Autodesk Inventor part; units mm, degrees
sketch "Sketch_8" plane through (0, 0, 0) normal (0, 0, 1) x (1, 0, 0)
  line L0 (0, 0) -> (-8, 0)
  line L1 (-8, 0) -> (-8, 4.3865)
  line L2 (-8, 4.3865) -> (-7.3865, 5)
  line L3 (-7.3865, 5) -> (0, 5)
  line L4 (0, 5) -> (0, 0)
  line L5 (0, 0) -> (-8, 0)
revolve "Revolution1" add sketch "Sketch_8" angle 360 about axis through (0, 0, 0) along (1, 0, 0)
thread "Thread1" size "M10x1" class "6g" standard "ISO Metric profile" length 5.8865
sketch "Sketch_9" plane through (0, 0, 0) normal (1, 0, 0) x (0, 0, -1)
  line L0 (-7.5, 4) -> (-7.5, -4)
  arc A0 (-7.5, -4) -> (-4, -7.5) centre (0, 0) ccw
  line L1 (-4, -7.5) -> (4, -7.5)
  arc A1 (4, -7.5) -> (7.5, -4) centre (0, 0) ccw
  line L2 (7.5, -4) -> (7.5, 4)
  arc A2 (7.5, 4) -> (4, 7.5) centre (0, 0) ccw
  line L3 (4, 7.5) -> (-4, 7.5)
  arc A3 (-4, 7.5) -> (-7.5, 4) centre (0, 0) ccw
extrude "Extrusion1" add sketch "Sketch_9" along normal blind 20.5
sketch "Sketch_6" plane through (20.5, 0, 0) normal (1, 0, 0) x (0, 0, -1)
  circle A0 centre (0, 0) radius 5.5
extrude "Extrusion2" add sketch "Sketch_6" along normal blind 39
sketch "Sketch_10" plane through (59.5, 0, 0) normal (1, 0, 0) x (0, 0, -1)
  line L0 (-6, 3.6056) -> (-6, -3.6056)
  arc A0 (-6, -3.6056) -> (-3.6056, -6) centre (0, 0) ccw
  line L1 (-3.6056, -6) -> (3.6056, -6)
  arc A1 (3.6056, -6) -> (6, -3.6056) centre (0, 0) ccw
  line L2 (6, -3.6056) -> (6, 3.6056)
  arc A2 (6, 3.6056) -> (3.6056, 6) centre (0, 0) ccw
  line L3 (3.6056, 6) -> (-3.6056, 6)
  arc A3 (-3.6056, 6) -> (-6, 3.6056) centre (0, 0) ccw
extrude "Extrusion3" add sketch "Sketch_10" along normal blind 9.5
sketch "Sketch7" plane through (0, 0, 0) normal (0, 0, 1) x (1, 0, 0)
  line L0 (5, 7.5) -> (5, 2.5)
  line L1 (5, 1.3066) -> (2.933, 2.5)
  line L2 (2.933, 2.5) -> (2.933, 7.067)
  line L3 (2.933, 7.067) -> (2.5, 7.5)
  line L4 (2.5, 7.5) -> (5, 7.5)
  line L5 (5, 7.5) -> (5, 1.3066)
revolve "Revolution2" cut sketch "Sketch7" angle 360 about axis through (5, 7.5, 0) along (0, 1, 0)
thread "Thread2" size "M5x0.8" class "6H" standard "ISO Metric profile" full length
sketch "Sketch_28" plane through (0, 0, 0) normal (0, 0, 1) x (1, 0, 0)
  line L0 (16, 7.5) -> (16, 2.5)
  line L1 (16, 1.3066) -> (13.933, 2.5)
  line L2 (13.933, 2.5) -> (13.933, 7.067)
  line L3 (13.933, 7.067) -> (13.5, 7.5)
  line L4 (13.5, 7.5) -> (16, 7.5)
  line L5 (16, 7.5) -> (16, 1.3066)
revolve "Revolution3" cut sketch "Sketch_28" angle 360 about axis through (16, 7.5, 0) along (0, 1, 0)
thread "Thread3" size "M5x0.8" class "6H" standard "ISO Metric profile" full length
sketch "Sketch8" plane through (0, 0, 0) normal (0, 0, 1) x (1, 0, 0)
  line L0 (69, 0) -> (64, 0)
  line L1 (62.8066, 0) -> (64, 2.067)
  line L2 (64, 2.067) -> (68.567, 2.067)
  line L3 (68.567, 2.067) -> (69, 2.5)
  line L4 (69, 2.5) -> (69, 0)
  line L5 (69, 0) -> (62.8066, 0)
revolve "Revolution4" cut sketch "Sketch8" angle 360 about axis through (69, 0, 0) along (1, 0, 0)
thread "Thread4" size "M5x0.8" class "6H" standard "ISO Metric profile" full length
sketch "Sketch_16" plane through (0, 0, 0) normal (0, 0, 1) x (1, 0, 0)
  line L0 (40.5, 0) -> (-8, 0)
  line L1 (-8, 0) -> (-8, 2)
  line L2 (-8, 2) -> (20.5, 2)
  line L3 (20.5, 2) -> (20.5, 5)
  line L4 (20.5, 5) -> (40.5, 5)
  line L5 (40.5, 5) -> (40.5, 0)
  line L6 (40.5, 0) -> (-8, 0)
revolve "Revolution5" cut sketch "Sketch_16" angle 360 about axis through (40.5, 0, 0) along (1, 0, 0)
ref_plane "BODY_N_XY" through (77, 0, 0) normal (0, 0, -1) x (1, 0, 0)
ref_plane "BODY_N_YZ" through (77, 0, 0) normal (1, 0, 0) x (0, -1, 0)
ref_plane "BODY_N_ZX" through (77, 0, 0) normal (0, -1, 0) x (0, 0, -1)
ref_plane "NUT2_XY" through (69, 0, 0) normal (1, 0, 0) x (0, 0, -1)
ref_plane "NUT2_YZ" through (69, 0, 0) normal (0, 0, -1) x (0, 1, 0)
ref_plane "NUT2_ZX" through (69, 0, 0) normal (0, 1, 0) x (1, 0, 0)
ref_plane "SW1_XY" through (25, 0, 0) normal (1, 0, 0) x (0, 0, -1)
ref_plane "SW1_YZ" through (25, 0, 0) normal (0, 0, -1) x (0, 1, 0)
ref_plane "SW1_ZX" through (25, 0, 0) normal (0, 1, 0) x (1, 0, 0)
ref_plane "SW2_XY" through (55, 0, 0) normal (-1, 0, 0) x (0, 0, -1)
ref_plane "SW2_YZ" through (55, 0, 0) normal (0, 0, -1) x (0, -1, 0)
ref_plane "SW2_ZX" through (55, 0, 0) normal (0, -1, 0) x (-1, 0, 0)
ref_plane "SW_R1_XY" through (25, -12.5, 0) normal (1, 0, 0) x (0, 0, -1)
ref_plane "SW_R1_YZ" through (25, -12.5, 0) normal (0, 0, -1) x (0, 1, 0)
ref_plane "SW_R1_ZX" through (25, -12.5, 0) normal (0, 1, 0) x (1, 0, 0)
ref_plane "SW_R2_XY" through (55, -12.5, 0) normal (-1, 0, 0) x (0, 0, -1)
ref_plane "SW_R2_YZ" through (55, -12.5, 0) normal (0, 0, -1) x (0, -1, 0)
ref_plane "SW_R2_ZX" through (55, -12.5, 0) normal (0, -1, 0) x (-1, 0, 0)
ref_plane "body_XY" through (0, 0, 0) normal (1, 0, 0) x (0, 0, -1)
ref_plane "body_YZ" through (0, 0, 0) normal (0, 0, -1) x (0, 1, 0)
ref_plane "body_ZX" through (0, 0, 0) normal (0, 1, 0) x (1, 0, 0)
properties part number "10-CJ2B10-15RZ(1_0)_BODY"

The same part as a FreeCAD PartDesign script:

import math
import FreeCAD as App
import Part
import Sketcher

V = App.Vector
Q = App.Units.Quantity


def add_polygon(sketch, points):
    """Adds a closed chain of lines whose ends are joined by coincident constraints."""
    first, n = sketch.GeometryCount, len(points)
    for a, b in zip(points, points[1:] + points[:1]):
        sketch.addGeometry(Part.LineSegment(App.Vector(*a, 0), App.Vector(*b, 0)), False)
    for i in range(n):
        sketch.addConstraint(Sketcher.Constraint("Coincident", first + i, 2, first + (i + 1) % n, 1))

doc = App.newDocument("Part")
body = doc.addObject("PartDesign::Body", "Body")

sketch1 = body.newObject("Sketcher::SketchObject", "Sketch")
sketch1.AttachmentSupport = (doc.getObject("XY_Plane"), [""])
sketch1.MapMode = "FlatFace"
add_polygon(sketch1, [(-8, 0), (0, 0), (0, 5), (-7.3865, 5), (-8, 4.3865)])
sketch1.addConstraint(Sketcher.Constraint("Horizontal", 0))
sketch1.addConstraint(Sketcher.Constraint("Vertical", 1))
sketch1.addConstraint(Sketcher.Constraint("Horizontal", 2))
sketch1.addConstraint(Sketcher.Constraint("Vertical", 4))
sketch1.addConstraint(Sketcher.Constraint("Coincident", 0, 2, -1, 1))
sketch1.addConstraint(Sketcher.Constraint("DistanceX", 0, 1, 0, 2, 8.0))
sketch1.addConstraint(Sketcher.Constraint("DistanceY", 1, 1, 1, 2, 5.0))
sketch1.addConstraint(Sketcher.Constraint("Angle", 3, Q("-135 deg")))
sketch1.addConstraint(Sketcher.Constraint("DistanceX", 2, 2, 2, 1, 7.3865))
revolution = body.newObject("PartDesign::Revolution", "Revolution")
revolution.Profile = sketch1
revolution.ReferenceAxis = (sketch1, ["H_Axis"])
revolution.Angle = 360

sketch2 = body.newObject("Sketcher::SketchObject", "Sketch001")
sketch2.AttachmentSupport = (doc.getObject("YZ_Plane"), [""])
sketch2.MapMode = "FlatFace"
sketch2.addGeometry(Part.ArcOfCircle(Part.Circle(V(0, 0, 0), V(0, 0, 1), 8.5), math.radians(28.072487), math.radians(61.927513)), False)
sketch2.addGeometry(Part.LineSegment(V(4, 7.5, 0), V(-4, 7.5, 0)), False)
sketch2.addGeometry(Part.ArcOfCircle(Part.Circle(V(0, 0, 0), V(0, 0, 1), 8.5), math.radians(118.072487), math.radians(151.927513)), False)
sketch2.addGeometry(Part.LineSegment(V(-7.5, 4, 0), V(-7.5, -4, 0)), False)
sketch2.addGeometry(Part.ArcOfCircle(Part.Circle(V(0, 0, 0), V(0, 0, 1), 8.5), math.radians(-151.927513), math.radians(-118.072487)), False)
sketch2.addGeometry(Part.LineSegment(V(-4, -7.5, 0), V(4, -7.5, 0)), False)
sketch2.addGeometry(Part.ArcOfCircle(Part.Circle(V(0, 0, 0), V(0, 0, 1), 8.5), math.radians(-61.927513), math.radians(-28.072487)), False)
sketch2.addGeometry(Part.LineSegment(V(7.5, -4, 0), V(7.5, 4, 0)), False)
sketch2.addConstraint(Sketcher.Constraint("Coincident", 0, 2, 1, 1))
sketch2.addConstraint(Sketcher.Constraint("Coincident", 1, 2, 2, 1))
sketch2.addConstraint(Sketcher.Constraint("Coincident", 2, 2, 3, 1))
sketch2.addConstraint(Sketcher.Constraint("Coincident", 3, 2, 4, 1))
sketch2.addConstraint(Sketcher.Constraint("Coincident", 4, 2, 5, 1))
sketch2.addConstraint(Sketcher.Constraint("Coincident", 5, 2, 6, 1))
sketch2.addConstraint(Sketcher.Constraint("Coincident", 6, 2, 7, 1))
sketch2.addConstraint(Sketcher.Constraint("Coincident", 7, 2, 0, 1))
sketch2.addConstraint(Sketcher.Constraint("Horizontal", 1))
sketch2.addConstraint(Sketcher.Constraint("Vertical", 3))
sketch2.addConstraint(Sketcher.Constraint("Horizontal", 5))
sketch2.addConstraint(Sketcher.Constraint("Vertical", 7))
sketch2.addConstraint(Sketcher.Constraint("Coincident", 0, 3, -1, 1))
sketch2.addConstraint(Sketcher.Constraint("Coincident", 2, 3, -1, 1))
sketch2.addConstraint(Sketcher.Constraint("Coincident", 4, 3, -1, 1))
sketch2.addConstraint(Sketcher.Constraint("Coincident", 6, 3, -1, 1))
sketch2.addConstraint(Sketcher.Constraint("Equal", 0, 2))
sketch2.addConstraint(Sketcher.Constraint("Equal", 2, 4))
sketch2.addConstraint(Sketcher.Constraint("Equal", 4, 6))
sketch2.addConstraint(Sketcher.Constraint("Horizontal", 3, 2, 6, 2))
sketch2.addConstraint(Sketcher.Constraint("Vertical", 1, 2, 4, 2))
sketch2.addConstraint(Sketcher.Constraint("Equal", 5, 3))
sketch2.addConstraint(Sketcher.Constraint("Radius", 0, 8.5))
sketch2.addConstraint(Sketcher.Constraint("DistanceX", 1, 2, 1, 1, 8.0))
pad1 = body.newObject("PartDesign::Pad", "Pad")
pad1.Profile = sketch2
pad1.Length = 20.5

sketch3 = body.newObject("Sketcher::SketchObject", "Sketch002")
sketch3.AttachmentSupport = (doc.getObject("YZ_Plane"), [""])
sketch3.MapMode = "FlatFace"
sketch3.AttachmentOffset = App.Placement(V(0, 0, 20.5), App.Rotation())
sketch3.addGeometry(Part.Circle(V(0, 0, 0), V(0, 0, 1), 5.5), False)
sketch3.addConstraint(Sketcher.Constraint("Coincident", 0, 3, -1, 1))
sketch3.addConstraint(Sketcher.Constraint("Diameter", 0, 11.0))
pad2 = body.newObject("PartDesign::Pad", "Pad001")
pad2.Profile = sketch3
pad2.Length = 39

sketch4 = body.newObject("Sketcher::SketchObject", "Sketch003")
sketch4.AttachmentSupport = (doc.getObject("YZ_Plane"), [""])
sketch4.MapMode = "FlatFace"
sketch4.AttachmentOffset = App.Placement(V(0, 0, 59.5), App.Rotation())
sketch4.addGeometry(Part.ArcOfCircle(Part.Circle(V(0, 0, 0), V(0, 0, 1), 7.000025), math.radians(31.003061), math.radians(58.996939)), False)
sketch4.addGeometry(Part.LineSegment(V(3.6056, 6, 0), V(-3.6056, 6, 0)), False)
sketch4.addGeometry(Part.ArcOfCircle(Part.Circle(V(0, 0, 0), V(0, 0, 1), 7.000025), math.radians(121.003061), math.radians(148.996939)), False)
sketch4.addGeometry(Part.LineSegment(V(-6, 3.6056, 0), V(-6, -3.6056, 0)), False)
sketch4.addGeometry(Part.ArcOfCircle(Part.Circle(V(0, 0, 0), V(0, 0, 1), 7.000025), math.radians(-148.996939), math.radians(-121.003061)), False)
sketch4.addGeometry(Part.LineSegment(V(-3.6056, -6, 0), V(3.6056, -6, 0)), False)
sketch4.addGeometry(Part.ArcOfCircle(Part.Circle(V(0, 0, 0), V(0, 0, 1), 7.000025), math.radians(-58.996939), math.radians(-31.003061)), False)
sketch4.addGeometry(Part.LineSegment(V(6, -3.6056, 0), V(6, 3.6056, 0)), False)
sketch4.addConstraint(Sketcher.Constraint("Coincident", 0, 2, 1, 1))
sketch4.addConstraint(Sketcher.Constraint("Coincident", 1, 2, 2, 1))
sketch4.addConstraint(Sketcher.Constraint("Coincident", 2, 2, 3, 1))
sketch4.addConstraint(Sketcher.Constraint("Coincident", 3, 2, 4, 1))
sketch4.addConstraint(Sketcher.Constraint("Coincident", 4, 2, 5, 1))
sketch4.addConstraint(Sketcher.Constraint("Coincident", 5, 2, 6, 1))
sketch4.addConstraint(Sketcher.Constraint("Coincident", 6, 2, 7, 1))
sketch4.addConstraint(Sketcher.Constraint("Coincident", 7, 2, 0, 1))
sketch4.addConstraint(Sketcher.Constraint("Horizontal", 1))
sketch4.addConstraint(Sketcher.Constraint("Vertical", 3))
sketch4.addConstraint(Sketcher.Constraint("Horizontal", 5))
sketch4.addConstraint(Sketcher.Constraint("Vertical", 7))
sketch4.addConstraint(Sketcher.Constraint("Coincident", 0, 3, -1, 1))
sketch4.addConstraint(Sketcher.Constraint("Coincident", 2, 3, -1, 1))
sketch4.addConstraint(Sketcher.Constraint("Coincident", 4, 3, -1, 1))
sketch4.addConstraint(Sketcher.Constraint("Coincident", 6, 3, -1, 1))
sketch4.addConstraint(Sketcher.Constraint("Equal", 0, 2))
sketch4.addConstraint(Sketcher.Constraint("Equal", 2, 4))
sketch4.addConstraint(Sketcher.Constraint("Equal", 4, 6))
sketch4.addConstraint(Sketcher.Constraint("Horizontal", 3, 2, 6, 2))
sketch4.addConstraint(Sketcher.Constraint("Vertical", 1, 2, 4, 2))
sketch4.addConstraint(Sketcher.Constraint("Equal", 5, 3))
sketch4.addConstraint(Sketcher.Constraint("Radius", 0, 7.0))
sketch4.addConstraint(Sketcher.Constraint("DistanceY", -1, 1, 0, 2, 6.0))
pad3 = body.newObject("PartDesign::Pad", "Pad002")
pad3.Profile = sketch4
pad3.Length = 9.5

sketch5 = body.newObject("Sketcher::SketchObject", "Sketch004")
sketch5.AttachmentSupport = (doc.getObject("XY_Plane"), [""])
sketch5.MapMode = "FlatFace"
add_polygon(sketch5, [(5, 1.3066), (5, 7.5), (2.5, 7.5), (2.933, 7.067), (2.933, 2.5)])
sketch5.addGeometry(Part.LineSegment(V(5, 1.3066, 0), V(5, 7.5, 0)), True)
sketch5.addConstraint(Sketcher.Constraint("Vertical", 0))
sketch5.addConstraint(Sketcher.Constraint("Horizontal", 1))
sketch5.addConstraint(Sketcher.Constraint("Vertical", 3))
sketch5.addConstraint(Sketcher.Constraint("Vertical", 5))
sketch5.addConstraint(Sketcher.Constraint("Coincident", 5, 1, 4, 2))
sketch5.addConstraint(Sketcher.Constraint("Horizontal", 1, 2, 5, 2))
sketch5.addConstraint(Sketcher.Constraint("Angle", 2, Q("-45 deg")))
sketch5.addConstraint(Sketcher.Constraint("Angle", 4, Q("-30.0004 deg")))
sketch5.addConstraint(Sketcher.Constraint("DistanceX", 1, 2, 1, 1, 2.5))
sketch5.addConstraint(Sketcher.Constraint("DistanceX", -1, 1, 0, 2, 5.0))
sketch5.addConstraint(Sketcher.Constraint("DistanceY", 3, 2, 1, 2, 5.0))
sketch5.addConstraint(Sketcher.Constraint("DistanceY", -1, 1, 0, 2, 7.5))
sketch5.addConstraint(Sketcher.Constraint("DistanceY", 3, 2, 3, 1, 4.567))
groove = body.newObject("PartDesign::Groove", "Groove")
groove.Profile = sketch5
groove.ReferenceAxis = (sketch5, ["Axis0"])
groove.Angle = 360

sketch6 = body.newObject("Sketcher::SketchObject", "Sketch005")
sketch6.AttachmentSupport = (doc.getObject("XY_Plane"), [""])
sketch6.MapMode = "FlatFace"
add_polygon(sketch6, [(16, 1.3066), (16, 7.5), (13.5, 7.5), (13.933, 7.067), (13.933, 2.5)])
sketch6.addGeometry(Part.LineSegment(V(16, 1.3066, 0), V(16, 7.5, 0)), True)
sketch6.addConstraint(Sketcher.Constraint("Vertical", 0))
sketch6.addConstraint(Sketcher.Constraint("Horizontal", 1))
sketch6.addConstraint(Sketcher.Constraint("Vertical", 3))
sketch6.addConstraint(Sketcher.Constraint("Vertical", 5))
sketch6.addConstraint(Sketcher.Constraint("Coincident", 5, 1, 4, 2))
sketch6.addConstraint(Sketcher.Constraint("Horizontal", 1, 2, 5, 2))
sketch6.addConstraint(Sketcher.Constraint("Angle", 2, Q("-45 deg")))
sketch6.addConstraint(Sketcher.Constraint("Angle", 4, Q("-30.0004 deg")))
sketch6.addConstraint(Sketcher.Constraint("DistanceX", 1, 2, 1, 1, 2.5))
sketch6.addConstraint(Sketcher.Constraint("DistanceX", -1, 1, 0, 2, 16.0))
sketch6.addConstraint(Sketcher.Constraint("DistanceY", 3, 2, 1, 2, 5.0))
sketch6.addConstraint(Sketcher.Constraint("DistanceY", -1, 1, 0, 2, 7.5))
sketch6.addConstraint(Sketcher.Constraint("DistanceY", 3, 2, 3, 1, 4.567))
groove2 = body.newObject("PartDesign::Groove", "Groove001")
groove2.Profile = sketch6
groove2.ReferenceAxis = (sketch6, ["Axis0"])
groove2.Angle = 360

sketch7 = body.newObject("Sketcher::SketchObject", "Sketch006")
sketch7.AttachmentSupport = (doc.getObject("XY_Plane"), [""])
sketch7.MapMode = "FlatFace"
add_polygon(sketch7, [(62.8066, 0), (69, 0), (69, 2.5), (68.567, 2.067), (64, 2.067)])
sketch7.addConstraint(Sketcher.Constraint("Horizontal", 0))
sketch7.addConstraint(Sketcher.Constraint("Vertical", 1))
sketch7.addConstraint(Sketcher.Constraint("Horizontal", 3))
sketch7.addConstraint(Sketcher.Constraint("PointOnObject", 0, 2, -1))
sketch7.addConstraint(Sketcher.Constraint("Angle", 2, Q("-135 deg")))
sketch7.addConstraint(Sketcher.Constraint("Angle", 4, Q("-120.0004 deg")))
sketch7.addConstraint(Sketcher.Constraint("DistanceY", 1, 1, 1, 2, 2.5))
sketch7.addConstraint(Sketcher.Constraint("DistanceX", -1, 1, 0, 2, 69.0))
sketch7.addConstraint(Sketcher.Constraint("DistanceX", -1, 1, 3, 2, 64.0))
sketch7.addConstraint(Sketcher.Constraint("DistanceX", 3, 2, 3, 1, 4.567))
groove3 = body.newObject("PartDesign::Groove", "Groove002")
groove3.Profile = sketch7
groove3.ReferenceAxis = (sketch7, ["H_Axis"])
groove3.Angle = 360

sketch8 = body.newObject("Sketcher::SketchObject", "Sketch007")
sketch8.AttachmentSupport = (doc.getObject("XY_Plane"), [""])
sketch8.MapMode = "FlatFace"
add_polygon(sketch8, [(-8, 0), (40.5, 0), (40.5, 5), (20.5, 5), (20.5, 2), (-8, 2)])
sketch8.addConstraint(Sketcher.Constraint("Horizontal", 0))
sketch8.addConstraint(Sketcher.Constraint("Vertical", 1))
sketch8.addConstraint(Sketcher.Constraint("Horizontal", 2))
sketch8.addConstraint(Sketcher.Constraint("Vertical", 3))
sketch8.addConstraint(Sketcher.Constraint("Horizontal", 4))
sketch8.addConstraint(Sketcher.Constraint("Vertical", 5))
sketch8.addConstraint(Sketcher.Constraint("PointOnObject", 0, 2, -1))
sketch8.addConstraint(Sketcher.Constraint("DistanceX", 2, 2, 2, 1, 20.0))
sketch8.addConstraint(Sketcher.Constraint("DistanceY", 1, 1, 1, 2, 5.0))
sketch8.addConstraint(Sketcher.Constraint("DistanceY", 3, 2, 3, 1, 3.0))
sketch8.addConstraint(Sketcher.Constraint("DistanceX", 0, 1, 0, 2, 48.5))
sketch8.addConstraint(Sketcher.Constraint("DistanceX", 4, 2, -1, 1, 8.0))
groove4 = body.newObject("PartDesign::Groove", "Groove003")
groove4.Profile = sketch8
groove4.ReferenceAxis = (sketch8, ["H_Axis"])
groove4.Angle = 360

doc.recompute()
